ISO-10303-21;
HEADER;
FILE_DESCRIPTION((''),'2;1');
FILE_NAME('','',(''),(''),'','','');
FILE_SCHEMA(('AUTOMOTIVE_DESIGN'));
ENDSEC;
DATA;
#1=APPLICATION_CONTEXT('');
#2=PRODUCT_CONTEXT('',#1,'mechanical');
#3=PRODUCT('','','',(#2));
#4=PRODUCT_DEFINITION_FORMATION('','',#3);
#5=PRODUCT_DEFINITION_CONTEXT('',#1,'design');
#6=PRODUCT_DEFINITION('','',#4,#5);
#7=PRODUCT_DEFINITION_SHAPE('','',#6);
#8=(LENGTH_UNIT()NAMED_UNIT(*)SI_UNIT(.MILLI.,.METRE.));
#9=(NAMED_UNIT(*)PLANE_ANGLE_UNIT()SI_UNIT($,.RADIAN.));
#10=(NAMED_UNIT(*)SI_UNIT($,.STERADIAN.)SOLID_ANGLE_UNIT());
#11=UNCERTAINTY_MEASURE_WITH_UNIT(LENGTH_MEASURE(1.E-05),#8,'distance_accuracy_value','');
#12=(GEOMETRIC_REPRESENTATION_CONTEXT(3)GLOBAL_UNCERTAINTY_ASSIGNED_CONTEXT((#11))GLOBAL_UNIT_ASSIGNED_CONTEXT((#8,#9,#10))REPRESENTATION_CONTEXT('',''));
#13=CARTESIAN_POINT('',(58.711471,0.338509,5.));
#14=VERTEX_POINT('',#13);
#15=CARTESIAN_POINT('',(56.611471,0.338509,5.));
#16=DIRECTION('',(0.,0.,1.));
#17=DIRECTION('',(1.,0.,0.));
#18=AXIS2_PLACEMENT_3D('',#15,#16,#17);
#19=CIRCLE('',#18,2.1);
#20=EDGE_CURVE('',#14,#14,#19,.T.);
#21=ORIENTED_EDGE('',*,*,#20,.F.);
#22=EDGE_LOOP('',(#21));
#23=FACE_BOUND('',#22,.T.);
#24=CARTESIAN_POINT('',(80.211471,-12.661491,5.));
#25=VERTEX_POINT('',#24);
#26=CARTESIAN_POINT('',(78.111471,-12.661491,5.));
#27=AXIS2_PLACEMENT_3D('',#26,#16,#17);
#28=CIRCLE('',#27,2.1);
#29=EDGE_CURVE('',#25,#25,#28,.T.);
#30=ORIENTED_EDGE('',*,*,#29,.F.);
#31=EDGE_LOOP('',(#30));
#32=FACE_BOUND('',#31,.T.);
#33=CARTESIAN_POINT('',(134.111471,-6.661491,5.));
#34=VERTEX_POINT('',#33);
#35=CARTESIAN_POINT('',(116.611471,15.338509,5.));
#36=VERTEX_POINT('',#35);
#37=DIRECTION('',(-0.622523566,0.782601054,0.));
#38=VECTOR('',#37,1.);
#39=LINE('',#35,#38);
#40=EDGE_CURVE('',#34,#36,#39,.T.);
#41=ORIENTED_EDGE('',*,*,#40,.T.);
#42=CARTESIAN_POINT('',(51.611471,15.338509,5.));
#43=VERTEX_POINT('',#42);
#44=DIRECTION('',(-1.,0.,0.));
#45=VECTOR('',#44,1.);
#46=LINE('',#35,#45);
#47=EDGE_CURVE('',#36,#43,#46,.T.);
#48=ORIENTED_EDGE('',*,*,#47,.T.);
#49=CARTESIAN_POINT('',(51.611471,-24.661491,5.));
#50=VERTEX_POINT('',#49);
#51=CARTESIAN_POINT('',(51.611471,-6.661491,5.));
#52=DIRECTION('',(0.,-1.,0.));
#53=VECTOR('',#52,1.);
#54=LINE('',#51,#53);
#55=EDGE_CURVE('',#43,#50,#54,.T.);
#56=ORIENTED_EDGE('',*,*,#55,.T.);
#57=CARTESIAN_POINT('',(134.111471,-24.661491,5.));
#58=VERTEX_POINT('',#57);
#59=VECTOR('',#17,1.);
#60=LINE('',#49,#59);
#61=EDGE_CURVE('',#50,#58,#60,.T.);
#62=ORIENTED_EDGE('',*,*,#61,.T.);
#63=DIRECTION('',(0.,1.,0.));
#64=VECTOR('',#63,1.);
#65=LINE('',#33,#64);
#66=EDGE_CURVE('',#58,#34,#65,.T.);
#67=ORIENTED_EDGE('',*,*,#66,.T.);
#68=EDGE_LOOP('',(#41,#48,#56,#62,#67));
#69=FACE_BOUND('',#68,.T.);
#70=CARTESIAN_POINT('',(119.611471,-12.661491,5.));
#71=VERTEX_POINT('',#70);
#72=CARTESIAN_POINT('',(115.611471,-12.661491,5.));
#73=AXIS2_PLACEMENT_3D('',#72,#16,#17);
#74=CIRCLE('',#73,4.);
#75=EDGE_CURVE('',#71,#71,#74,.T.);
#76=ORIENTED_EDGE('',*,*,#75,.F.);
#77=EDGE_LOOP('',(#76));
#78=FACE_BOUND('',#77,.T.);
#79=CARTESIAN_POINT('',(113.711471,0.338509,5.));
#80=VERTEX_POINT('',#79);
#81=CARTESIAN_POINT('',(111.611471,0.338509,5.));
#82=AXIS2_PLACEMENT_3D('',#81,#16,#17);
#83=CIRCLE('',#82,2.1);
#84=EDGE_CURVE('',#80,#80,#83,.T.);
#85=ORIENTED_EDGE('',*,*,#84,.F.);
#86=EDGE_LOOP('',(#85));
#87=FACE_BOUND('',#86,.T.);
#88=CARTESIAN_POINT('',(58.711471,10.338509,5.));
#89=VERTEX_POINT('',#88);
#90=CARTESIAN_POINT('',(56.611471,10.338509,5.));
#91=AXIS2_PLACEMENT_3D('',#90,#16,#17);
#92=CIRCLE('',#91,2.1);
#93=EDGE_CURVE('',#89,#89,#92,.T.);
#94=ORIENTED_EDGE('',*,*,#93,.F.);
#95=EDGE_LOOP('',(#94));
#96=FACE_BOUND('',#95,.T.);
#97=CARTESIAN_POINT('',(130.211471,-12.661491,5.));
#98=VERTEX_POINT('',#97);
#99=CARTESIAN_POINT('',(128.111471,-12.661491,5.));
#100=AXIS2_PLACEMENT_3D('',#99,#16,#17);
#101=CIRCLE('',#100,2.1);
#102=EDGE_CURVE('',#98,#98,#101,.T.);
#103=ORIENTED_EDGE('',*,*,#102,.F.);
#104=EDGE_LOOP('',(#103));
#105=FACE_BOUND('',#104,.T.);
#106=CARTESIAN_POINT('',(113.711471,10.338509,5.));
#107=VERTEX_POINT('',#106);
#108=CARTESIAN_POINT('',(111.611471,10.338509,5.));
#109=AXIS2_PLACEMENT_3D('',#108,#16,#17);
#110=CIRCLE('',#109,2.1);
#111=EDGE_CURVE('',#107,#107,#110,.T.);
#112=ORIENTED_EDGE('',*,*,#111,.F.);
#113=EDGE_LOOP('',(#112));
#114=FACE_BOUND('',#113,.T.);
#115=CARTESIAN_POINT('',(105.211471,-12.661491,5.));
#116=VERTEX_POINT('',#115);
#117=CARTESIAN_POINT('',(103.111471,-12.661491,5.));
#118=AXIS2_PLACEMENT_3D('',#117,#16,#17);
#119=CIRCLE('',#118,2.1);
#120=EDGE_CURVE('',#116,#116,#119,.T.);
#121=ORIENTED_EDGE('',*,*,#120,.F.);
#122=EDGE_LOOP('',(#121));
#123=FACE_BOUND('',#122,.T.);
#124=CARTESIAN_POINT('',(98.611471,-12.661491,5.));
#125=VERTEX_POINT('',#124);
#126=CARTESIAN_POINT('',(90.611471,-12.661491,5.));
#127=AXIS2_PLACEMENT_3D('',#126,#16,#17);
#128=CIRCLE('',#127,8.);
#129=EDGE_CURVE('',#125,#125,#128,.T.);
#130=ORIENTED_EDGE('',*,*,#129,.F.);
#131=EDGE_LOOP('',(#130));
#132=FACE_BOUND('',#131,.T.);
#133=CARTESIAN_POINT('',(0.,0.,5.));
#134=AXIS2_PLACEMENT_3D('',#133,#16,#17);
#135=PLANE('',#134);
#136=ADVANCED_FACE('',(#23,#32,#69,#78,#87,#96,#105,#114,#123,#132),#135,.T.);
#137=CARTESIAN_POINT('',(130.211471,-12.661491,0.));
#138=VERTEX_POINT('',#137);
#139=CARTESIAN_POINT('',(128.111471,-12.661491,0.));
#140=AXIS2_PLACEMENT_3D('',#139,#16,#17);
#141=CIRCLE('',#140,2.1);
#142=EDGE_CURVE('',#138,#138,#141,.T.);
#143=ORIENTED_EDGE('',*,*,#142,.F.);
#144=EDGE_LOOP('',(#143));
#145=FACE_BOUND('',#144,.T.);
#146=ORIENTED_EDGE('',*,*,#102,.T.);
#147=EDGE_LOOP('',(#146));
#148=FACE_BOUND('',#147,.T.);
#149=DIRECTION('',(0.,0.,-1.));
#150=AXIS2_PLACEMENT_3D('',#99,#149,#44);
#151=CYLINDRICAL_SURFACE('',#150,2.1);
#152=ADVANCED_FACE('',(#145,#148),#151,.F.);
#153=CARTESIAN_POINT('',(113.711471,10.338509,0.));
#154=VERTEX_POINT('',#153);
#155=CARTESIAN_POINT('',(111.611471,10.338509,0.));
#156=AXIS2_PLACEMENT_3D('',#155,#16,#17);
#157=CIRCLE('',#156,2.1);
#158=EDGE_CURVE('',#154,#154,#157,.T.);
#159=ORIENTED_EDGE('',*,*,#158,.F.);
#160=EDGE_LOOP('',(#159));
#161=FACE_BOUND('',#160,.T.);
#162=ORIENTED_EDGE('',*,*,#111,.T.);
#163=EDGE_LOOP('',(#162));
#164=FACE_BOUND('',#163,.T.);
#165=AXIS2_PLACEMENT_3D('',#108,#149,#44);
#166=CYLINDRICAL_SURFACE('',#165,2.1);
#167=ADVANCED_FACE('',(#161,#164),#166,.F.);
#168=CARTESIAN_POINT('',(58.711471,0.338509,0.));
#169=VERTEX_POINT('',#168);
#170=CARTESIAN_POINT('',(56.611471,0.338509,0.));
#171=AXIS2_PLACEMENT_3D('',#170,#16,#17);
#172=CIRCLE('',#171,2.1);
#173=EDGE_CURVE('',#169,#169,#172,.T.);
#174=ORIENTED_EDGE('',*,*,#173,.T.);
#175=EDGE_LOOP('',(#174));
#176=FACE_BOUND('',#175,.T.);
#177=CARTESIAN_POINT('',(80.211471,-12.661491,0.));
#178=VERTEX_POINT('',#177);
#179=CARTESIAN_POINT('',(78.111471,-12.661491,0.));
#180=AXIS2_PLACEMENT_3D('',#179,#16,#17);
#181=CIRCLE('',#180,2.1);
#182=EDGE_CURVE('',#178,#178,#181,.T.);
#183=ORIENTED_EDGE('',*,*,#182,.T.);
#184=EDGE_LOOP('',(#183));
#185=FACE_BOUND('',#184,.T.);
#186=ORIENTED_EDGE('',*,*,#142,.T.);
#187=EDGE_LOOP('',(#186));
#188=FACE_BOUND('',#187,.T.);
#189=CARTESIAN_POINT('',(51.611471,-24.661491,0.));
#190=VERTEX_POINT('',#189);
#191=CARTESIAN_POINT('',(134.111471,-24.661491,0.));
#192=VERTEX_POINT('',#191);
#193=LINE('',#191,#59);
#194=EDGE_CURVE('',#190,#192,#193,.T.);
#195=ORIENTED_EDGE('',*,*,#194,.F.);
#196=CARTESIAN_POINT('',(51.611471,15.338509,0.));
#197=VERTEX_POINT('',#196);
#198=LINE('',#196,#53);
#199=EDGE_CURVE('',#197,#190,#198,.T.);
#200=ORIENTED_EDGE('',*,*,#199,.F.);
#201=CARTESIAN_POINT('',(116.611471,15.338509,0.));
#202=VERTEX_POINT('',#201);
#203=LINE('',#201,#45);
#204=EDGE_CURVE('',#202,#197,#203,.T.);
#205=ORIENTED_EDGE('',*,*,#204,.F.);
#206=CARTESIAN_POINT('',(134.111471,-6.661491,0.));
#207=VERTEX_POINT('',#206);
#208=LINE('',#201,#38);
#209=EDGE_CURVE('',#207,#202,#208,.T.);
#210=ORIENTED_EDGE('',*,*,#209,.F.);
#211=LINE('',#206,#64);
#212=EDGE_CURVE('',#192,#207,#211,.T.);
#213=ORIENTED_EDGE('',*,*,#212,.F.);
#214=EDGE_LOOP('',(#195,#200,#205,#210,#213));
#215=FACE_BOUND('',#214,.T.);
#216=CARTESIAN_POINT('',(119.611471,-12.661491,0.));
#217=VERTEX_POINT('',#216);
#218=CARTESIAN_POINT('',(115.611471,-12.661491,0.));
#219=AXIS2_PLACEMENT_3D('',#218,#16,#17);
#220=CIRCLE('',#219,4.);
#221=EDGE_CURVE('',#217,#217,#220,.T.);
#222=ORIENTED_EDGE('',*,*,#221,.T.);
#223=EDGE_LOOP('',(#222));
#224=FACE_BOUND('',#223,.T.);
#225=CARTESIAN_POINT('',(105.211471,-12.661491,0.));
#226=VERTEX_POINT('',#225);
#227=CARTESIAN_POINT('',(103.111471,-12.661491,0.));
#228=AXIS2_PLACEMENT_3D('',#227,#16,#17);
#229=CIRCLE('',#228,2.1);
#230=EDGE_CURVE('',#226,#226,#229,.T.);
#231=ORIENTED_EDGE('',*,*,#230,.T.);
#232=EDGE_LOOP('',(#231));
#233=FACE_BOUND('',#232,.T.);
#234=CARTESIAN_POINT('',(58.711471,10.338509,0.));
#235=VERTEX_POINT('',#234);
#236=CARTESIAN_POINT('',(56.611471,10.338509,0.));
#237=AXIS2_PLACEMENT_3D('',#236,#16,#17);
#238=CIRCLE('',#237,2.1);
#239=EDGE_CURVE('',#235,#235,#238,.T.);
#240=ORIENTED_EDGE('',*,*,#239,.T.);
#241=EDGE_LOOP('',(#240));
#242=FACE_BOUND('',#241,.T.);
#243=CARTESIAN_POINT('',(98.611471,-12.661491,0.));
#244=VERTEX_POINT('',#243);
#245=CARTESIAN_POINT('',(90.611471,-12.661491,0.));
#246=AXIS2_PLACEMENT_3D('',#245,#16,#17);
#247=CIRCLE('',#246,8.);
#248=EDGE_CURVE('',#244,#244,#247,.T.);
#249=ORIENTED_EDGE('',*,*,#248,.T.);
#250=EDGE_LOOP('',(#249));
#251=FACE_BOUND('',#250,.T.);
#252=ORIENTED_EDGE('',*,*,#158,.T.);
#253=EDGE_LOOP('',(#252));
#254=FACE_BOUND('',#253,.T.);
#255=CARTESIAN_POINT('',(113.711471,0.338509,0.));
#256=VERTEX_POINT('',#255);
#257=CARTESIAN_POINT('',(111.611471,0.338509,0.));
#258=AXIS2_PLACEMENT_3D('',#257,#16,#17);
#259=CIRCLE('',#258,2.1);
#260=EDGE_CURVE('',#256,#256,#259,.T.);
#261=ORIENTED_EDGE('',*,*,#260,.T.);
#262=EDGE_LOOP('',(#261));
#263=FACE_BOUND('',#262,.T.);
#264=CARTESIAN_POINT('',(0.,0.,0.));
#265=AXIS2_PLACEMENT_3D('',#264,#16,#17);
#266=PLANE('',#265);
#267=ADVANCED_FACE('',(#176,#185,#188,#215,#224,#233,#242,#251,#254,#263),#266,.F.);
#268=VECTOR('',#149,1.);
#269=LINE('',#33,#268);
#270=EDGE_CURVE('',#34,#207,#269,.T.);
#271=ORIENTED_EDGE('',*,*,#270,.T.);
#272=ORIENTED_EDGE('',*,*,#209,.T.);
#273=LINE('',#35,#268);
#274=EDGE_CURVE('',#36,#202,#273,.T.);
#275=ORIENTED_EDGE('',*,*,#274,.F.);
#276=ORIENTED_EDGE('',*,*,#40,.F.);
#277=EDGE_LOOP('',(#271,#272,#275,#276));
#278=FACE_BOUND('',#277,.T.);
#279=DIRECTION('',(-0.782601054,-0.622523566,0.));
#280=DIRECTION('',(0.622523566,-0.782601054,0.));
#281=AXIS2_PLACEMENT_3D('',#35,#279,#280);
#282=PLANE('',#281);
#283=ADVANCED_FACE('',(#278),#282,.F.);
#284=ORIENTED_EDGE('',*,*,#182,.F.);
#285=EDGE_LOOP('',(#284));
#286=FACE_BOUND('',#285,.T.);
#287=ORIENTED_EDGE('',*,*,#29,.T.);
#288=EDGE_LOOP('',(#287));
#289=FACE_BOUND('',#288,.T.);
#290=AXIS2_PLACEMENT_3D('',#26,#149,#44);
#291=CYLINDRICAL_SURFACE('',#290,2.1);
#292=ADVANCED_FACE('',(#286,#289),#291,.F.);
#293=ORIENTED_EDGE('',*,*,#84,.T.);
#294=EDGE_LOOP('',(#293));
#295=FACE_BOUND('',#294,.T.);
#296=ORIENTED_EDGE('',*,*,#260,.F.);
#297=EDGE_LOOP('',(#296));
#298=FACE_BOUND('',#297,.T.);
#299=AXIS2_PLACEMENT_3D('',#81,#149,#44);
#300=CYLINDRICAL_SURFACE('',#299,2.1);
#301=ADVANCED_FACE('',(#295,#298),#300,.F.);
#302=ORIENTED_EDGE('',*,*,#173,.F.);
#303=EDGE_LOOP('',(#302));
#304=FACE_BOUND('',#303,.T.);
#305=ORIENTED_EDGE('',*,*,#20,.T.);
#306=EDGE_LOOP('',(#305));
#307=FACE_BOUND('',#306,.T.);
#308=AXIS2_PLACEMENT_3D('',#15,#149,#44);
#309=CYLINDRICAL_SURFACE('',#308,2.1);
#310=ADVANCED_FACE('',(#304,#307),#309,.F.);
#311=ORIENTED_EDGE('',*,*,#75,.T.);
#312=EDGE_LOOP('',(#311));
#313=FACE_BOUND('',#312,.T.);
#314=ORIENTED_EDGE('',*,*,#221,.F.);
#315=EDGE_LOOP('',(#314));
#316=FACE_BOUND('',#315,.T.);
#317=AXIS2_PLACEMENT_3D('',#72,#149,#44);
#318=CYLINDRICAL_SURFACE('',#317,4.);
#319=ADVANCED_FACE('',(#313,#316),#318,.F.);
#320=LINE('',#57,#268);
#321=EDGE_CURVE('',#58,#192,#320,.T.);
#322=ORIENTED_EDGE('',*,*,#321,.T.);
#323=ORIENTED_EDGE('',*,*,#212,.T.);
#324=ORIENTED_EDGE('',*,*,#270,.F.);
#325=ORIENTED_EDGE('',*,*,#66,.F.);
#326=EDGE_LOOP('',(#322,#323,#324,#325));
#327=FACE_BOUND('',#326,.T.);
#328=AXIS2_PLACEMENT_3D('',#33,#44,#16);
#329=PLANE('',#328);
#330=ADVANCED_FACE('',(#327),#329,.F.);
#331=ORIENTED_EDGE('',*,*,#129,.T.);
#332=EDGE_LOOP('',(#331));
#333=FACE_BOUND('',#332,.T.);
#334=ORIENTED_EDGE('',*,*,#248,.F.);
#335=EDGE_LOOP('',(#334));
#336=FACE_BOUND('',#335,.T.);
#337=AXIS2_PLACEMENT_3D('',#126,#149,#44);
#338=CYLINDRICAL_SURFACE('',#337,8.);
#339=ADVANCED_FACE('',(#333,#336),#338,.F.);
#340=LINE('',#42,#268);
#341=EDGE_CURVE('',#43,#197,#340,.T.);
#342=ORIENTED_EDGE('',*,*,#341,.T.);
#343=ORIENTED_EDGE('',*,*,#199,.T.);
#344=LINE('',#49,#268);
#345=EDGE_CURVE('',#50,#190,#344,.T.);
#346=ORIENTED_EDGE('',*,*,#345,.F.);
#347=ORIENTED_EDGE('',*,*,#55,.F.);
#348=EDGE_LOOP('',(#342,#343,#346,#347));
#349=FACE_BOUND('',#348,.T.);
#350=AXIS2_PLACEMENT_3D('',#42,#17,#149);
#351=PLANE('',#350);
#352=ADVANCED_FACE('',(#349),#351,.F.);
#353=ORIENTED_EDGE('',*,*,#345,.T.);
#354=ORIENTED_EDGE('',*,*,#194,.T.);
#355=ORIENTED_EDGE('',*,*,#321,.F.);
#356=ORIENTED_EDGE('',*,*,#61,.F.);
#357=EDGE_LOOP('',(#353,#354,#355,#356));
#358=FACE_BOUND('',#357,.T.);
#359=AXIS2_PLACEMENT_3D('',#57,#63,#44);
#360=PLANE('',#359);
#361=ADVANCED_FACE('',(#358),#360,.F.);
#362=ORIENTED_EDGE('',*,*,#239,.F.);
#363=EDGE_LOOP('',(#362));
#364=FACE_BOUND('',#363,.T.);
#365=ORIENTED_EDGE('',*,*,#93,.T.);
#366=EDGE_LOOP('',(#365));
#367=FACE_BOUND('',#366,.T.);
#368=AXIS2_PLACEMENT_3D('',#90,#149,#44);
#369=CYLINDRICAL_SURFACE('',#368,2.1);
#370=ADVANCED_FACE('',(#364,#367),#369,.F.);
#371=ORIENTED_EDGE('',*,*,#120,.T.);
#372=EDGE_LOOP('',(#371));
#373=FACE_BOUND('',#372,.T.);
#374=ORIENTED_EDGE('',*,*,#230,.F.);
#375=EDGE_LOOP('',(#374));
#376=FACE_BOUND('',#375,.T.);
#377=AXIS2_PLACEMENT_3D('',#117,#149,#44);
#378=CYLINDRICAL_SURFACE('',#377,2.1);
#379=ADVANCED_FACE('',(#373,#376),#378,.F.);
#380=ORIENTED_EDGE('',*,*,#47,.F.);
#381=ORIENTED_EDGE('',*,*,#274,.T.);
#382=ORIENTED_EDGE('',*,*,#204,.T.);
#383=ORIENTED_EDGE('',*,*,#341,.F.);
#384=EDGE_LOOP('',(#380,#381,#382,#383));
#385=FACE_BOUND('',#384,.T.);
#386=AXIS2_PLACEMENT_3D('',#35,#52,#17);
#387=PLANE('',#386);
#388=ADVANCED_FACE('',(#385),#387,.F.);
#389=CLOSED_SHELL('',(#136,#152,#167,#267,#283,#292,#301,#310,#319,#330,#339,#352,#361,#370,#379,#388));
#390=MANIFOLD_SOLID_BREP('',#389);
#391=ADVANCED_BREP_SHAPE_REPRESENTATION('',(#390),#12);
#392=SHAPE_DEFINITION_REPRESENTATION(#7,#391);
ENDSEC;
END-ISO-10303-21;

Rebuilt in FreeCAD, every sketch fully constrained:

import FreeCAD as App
import Part
import Sketcher


def add_polygon(sketch, points):
    """Adds a closed chain of lines whose ends are joined by coincident constraints."""
    first, n = sketch.GeometryCount, len(points)
    for a, b in zip(points, points[1:] + points[:1]):
        sketch.addGeometry(Part.LineSegment(App.Vector(*a, 0), App.Vector(*b, 0)), False)
    for i in range(n):
        sketch.addConstraint(Sketcher.Constraint("Coincident", first + i, 2, first + (i + 1) % n, 1))

doc = App.newDocument("Part")
body = doc.addObject("PartDesign::Body", "Body")

# Sketch on XY plane
sketch1 = doc.addObject("Sketcher::SketchObject", "Sketch")
body.addObject(sketch1)
sketch1.AttachmentSupport = (doc.XY_Plane, [""])
sketch1.MapMode = "FlatFace"
add_polygon(sketch1, [(116.6, 15.3), (51.6, 15.3), (51.6, -24.7), (134.1, -24.7), (134.1, -6.7)])  # lines 0-4
sketch1.addGeometry(Part.Circle(App.Vector(78.1, -12.7, 0), App.Vector(0, 0, 1), 2.1), False)  # 5
sketch1.addGeometry(Part.Circle(App.Vector(90.6, -12.7, 0), App.Vector(0, 0, 1), 8), False)  # 6
sketch1.addGeometry(Part.Circle(App.Vector(103.1, -12.7, 0), App.Vector(0, 0, 1), 2.1), False)  # 7
sketch1.addGeometry(Part.Circle(App.Vector(115.6, -12.7, 0), App.Vector(0, 0, 1), 4), False)  # 8
sketch1.addGeometry(Part.Circle(App.Vector(128.1, -12.7, 0), App.Vector(0, 0, 1), 2.1), False)  # 9
sketch1.addGeometry(Part.Circle(App.Vector(56.6, 0.3, 0), App.Vector(0, 0, 1), 2.1), False)  # 10
sketch1.addGeometry(Part.Circle(App.Vector(56.6, 10.3, 0), App.Vector(0, 0, 1), 2.1), False)  # 11
sketch1.addGeometry(Part.Circle(App.Vector(111.6, 0.3, 0), App.Vector(0, 0, 1), 2.1), False)  # 12
sketch1.addGeometry(Part.Circle(App.Vector(111.6, 10.3, 0), App.Vector(0, 0, 1), 2.1), False)  # 13
sketch1.addConstraint([
    Sketcher.Constraint("Horizontal", 0),
    Sketcher.Constraint("Vertical", 1),
    Sketcher.Constraint("Horizontal", 2),
    Sketcher.Constraint("Vertical", 3),
    Sketcher.Constraint("Equal", 5, 7),
    Sketcher.Constraint("Equal", 7, 9),
    Sketcher.Constraint("Equal", 9, 10),
    Sketcher.Constraint("Equal", 10, 11),
    Sketcher.Constraint("Equal", 11, 12),
    Sketcher.Constraint("Equal", 12, 13),
    Sketcher.Constraint("Horizontal", 5, 3, 6, 3),
    Sketcher.Constraint("Horizontal", 6, 3, 7, 3),
    Sketcher.Constraint("Horizontal", 7, 3, 8, 3),
    Sketcher.Constraint("Horizontal", 8, 3, 9, 3),
    Sketcher.Constraint("Horizontal", 10, 3, 12, 3),
    Sketcher.Constraint("Horizontal", 11, 3, 13, 3),
    Sketcher.Constraint("Vertical", 10, 3, 11, 3),
    Sketcher.Constraint("Vertical", 12, 3, 13, 3),
    Sketcher.Constraint("Diameter", 6, 16.0),
    Sketcher.Constraint("Diameter", 8, 8.0),
    Sketcher.Constraint("Diameter", 5, 4.2),
    Sketcher.Constraint("DistanceX", 0, 2, 0, 1, 65.0),
    Sketcher.Constraint("DistanceY", 1, 2, 1, 1, 40.0),
    Sketcher.Constraint("DistanceY", 3, 1, 3, 2, 18.0),
    Sketcher.Constraint("DistanceX", 2, 1, 2, 2, 82.5),
    Sketcher.Constraint("DistanceX", 5, 3, 7, 3, 25.0),
    Sketcher.Constraint("DistanceX", 6, 3, 8, 3, 25.0),
    Sketcher.Constraint("DistanceX", 7, 3, 9, 3, 25.0),
    Sketcher.Constraint("DistanceY", 5, 3, 10, 3, 13.0),
    Sketcher.Constraint("DistanceX", 10, 3, 6, 3, 34.0),
    Sketcher.Constraint("DistanceY", 10, 3, 11, 3, 10.0),
    Sketcher.Constraint("DistanceX", 12, 3, 8, 3, 4.0),
    Sketcher.Constraint("DistanceX", 0, 2, 11, 3, 5.0),
    Sketcher.Constraint("DistanceY", 11, 3, 0, 2, 5.0),
    Sketcher.Constraint("DistanceX", 9, 3, 2, 2, 6.0),
    Sketcher.Constraint("DistanceX", -1, 1, 5, 3, 78.111471),
    Sketcher.Constraint("DistanceY", 5, 3, -1, 1, 12.661491),
])
pad1 = doc.addObject("PartDesign::Pad", "Pad")
body.addObject(pad1)
pad1.Profile = sketch1
pad1.Length = 5

doc.recompute()
